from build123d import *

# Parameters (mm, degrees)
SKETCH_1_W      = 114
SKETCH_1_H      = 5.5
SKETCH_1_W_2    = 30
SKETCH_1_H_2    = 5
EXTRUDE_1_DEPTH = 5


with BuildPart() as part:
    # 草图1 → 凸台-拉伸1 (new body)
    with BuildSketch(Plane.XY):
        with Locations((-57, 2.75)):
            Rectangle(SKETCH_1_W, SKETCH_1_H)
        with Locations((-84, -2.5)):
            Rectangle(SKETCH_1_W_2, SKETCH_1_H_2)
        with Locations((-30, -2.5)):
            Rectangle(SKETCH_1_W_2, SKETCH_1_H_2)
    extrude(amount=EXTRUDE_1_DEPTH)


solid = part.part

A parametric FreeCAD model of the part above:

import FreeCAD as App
import Part
import Sketcher

V = App.Vector

doc = App.newDocument("Part")
body = doc.addObject("PartDesign::Body", "Body")

# Sketch on XY plane
sketch1 = doc.addObject("Sketcher::SketchObject", "Sketch")
body.addObject(sketch1)
sketch1.AttachmentSupport = (doc.XY_Plane, [""])
sketch1.MapMode = "FlatFace"
sketch1.addGeometry(Part.LineSegment(V(-114, 5.5, 0), V(-114, 0, 0)), False)
sketch1.addGeometry(Part.LineSegment(V(-114, 0, 0), V(-99, 0, 0)), False)
sketch1.addGeometry(Part.LineSegment(V(-99, 0, 0), V(-99, -5, 0)), False)
sketch1.addGeometry(Part.LineSegment(V(-99, -5, 0), V(-69, -5, 0)), False)
sketch1.addGeometry(Part.LineSegment(V(-69, -5, 0), V(-69, 0, 0)), False)
sketch1.addGeometry(Part.LineSegment(V(-69, 0, 0), V(-45, 0, 0)), False)
sketch1.addGeometry(Part.LineSegment(V(-45, 0, 0), V(-45, -5, 0)), False)
sketch1.addGeometry(Part.LineSegment(V(-45, -5, 0), V(-15, -5, 0)), False)
sketch1.addGeometry(Part.LineSegment(V(-15, -5, 0), V(-15, 0, 0)), False)
sketch1.addGeometry(Part.LineSegment(V(-15, 0, 0), V(0, 0, 0)), False)
sketch1.addGeometry(Part.LineSegment(V(0, 0, 0), V(0, 5.5, 0)), False)
sketch1.addGeometry(Part.LineSegment(V(0, 5.5, 0), V(-114, 5.5, 0)), False)
sketch1.addConstraint(Sketcher.Constraint("Coincident", 0, 2, 1, 1))
sketch1.addConstraint(Sketcher.Constraint("Coincident", 1, 2, 2, 1))
sketch1.addConstraint(Sketcher.Constraint("Coincident", 2, 2, 3, 1))
sketch1.addConstraint(Sketcher.Constraint("Coincident", 3, 2, 4, 1))
sketch1.addConstraint(Sketcher.Constraint("Coincident", 4, 2, 5, 1))
sketch1.addConstraint(Sketcher.Constraint("Coincident", 5, 2, 6, 1))
sketch1.addConstraint(Sketcher.Constraint("Coincident", 6, 2, 7, 1))
sketch1.addConstraint(Sketcher.Constraint("Coincident", 7, 2, 8, 1))
sketch1.addConstraint(Sketcher.Constraint("Coincident", 8, 2, 9, 1))
sketch1.addConstraint(Sketcher.Constraint("Coincident", 9, 2, 10, 1))
sketch1.addConstraint(Sketcher.Constraint("Coincident", 10, 2, 11, 1))
sketch1.addConstraint(Sketcher.Constraint("Coincident", 11, 2, 0, 1))
sketch1.addConstraint(Sketcher.Constraint("Vertical", 0))
sketch1.addConstraint(Sketcher.Constraint("Horizontal", 1))
sketch1.addConstraint(Sketcher.Constraint("Vertical", 2))
sketch1.addConstraint(Sketcher.Constraint("Horizontal", 3))
sketch1.addConstraint(Sketcher.Constraint("Vertical", 4))
sketch1.addConstraint(Sketcher.Constraint("Horizontal", 5))
sketch1.addConstraint(Sketcher.Constraint("Vertical", 6))
sketch1.addConstraint(Sketcher.Constraint("Horizontal", 7))
sketch1.addConstraint(Sketcher.Constraint("Vertical", 8))
sketch1.addConstraint(Sketcher.Constraint("Horizontal", 9))
sketch1.addConstraint(Sketcher.Constraint("Vertical", 10))
sketch1.addConstraint(Sketcher.Constraint("Horizontal", 11))
sketch1.addConstraint(Sketcher.Constraint("Coincident", 9, 2, -1, 1))
sketch1.addConstraint(Sketcher.Constraint("PointOnObject", 0, 2, -1))
sketch1.addConstraint(Sketcher.Constraint("PointOnObject", 4, 2, -1))
sketch1.addConstraint(Sketcher.Constraint("Horizontal", 3, 2, 6, 2))
sketch1.addConstraint(Sketcher.Constraint("Equal", 3, 7))
sketch1.addConstraint(Sketcher.Constraint("Equal", 1, 9))
sketch1.addConstraint(Sketcher.Constraint("DistanceX", 1, 1, 1, 2, 15.0))
sketch1.addConstraint(Sketcher.Constraint("DistanceX", 3, 1, 3, 2, 30.0))
sketch1.addConstraint(Sketcher.Constraint("DistanceX", 5, 1, 5, 2, 24.0))
sketch1.addConstraint(Sketcher.Constraint("DistanceY", 2, 2, 2, 1, 5.0))
sketch1.addConstraint(Sketcher.Constraint("DistanceY", 0, 2, 0, 1, 5.5))
pad1 = doc.addObject("PartDesign::Pad", "Pad")
body.addObject(pad1)
pad1.Profile = sketch1
pad1.Length = 5

doc.recompute()
